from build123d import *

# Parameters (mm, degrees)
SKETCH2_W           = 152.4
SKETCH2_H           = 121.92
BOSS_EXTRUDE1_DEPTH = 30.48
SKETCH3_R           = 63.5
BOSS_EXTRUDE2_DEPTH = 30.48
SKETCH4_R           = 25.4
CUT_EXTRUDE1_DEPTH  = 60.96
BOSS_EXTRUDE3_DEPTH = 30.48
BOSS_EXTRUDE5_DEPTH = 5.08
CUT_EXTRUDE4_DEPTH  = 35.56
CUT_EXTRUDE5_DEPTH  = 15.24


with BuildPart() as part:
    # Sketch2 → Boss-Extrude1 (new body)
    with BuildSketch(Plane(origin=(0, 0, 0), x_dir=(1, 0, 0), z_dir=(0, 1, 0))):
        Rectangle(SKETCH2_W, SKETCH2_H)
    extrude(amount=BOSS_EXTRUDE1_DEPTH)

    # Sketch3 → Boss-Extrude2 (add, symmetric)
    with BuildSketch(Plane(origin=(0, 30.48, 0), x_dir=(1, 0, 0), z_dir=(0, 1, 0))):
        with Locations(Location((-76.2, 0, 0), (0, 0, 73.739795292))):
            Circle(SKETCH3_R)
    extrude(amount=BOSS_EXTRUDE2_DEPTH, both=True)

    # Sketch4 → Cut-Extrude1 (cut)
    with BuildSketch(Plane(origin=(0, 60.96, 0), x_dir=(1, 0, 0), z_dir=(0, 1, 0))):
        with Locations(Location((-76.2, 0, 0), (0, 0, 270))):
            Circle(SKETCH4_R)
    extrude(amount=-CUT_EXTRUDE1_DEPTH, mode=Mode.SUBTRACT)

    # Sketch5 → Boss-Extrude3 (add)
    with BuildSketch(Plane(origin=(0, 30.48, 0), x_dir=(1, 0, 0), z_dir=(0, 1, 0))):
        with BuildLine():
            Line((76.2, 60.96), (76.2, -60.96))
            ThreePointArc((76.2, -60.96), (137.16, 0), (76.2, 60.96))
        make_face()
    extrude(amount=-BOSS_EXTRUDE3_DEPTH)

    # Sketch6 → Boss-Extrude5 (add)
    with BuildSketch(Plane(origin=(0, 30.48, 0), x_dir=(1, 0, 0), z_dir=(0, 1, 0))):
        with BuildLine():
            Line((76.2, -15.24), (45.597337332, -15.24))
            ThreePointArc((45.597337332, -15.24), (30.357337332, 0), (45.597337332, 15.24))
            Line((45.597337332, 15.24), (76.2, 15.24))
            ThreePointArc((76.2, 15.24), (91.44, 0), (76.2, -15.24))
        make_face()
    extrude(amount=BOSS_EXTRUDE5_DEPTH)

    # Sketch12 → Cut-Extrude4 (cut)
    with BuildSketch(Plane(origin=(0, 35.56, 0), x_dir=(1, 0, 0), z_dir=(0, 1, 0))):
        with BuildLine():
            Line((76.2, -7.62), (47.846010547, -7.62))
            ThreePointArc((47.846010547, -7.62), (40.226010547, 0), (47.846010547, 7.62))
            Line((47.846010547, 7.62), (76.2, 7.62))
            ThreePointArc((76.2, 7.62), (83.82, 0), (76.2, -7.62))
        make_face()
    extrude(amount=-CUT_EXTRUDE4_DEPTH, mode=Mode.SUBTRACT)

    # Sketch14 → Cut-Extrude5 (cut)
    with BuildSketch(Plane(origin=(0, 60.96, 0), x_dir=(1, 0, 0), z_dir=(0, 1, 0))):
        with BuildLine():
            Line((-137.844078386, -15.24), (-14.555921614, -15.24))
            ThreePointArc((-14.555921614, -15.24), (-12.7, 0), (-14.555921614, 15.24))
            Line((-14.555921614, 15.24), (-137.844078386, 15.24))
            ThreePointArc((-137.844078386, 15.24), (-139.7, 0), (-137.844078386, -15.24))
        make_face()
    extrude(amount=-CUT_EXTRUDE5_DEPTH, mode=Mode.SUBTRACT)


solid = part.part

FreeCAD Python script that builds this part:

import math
import FreeCAD as App
import Part
import Sketcher
Q = App.Units.Quantity


def add_polygon(sketch, points):
    """Adds a closed chain of lines whose ends are joined by coincident constraints."""
    first, n = sketch.GeometryCount, len(points)
    for a, b in zip(points, points[1:] + points[:1]):
        sketch.addGeometry(Part.LineSegment(App.Vector(*a, 0), App.Vector(*b, 0)), False)
    for i in range(n):
        sketch.addConstraint(Sketcher.Constraint("Coincident", first + i, 2, first + (i + 1) % n, 1))

doc = App.newDocument("Part")
body = doc.addObject("PartDesign::Body", "Body")

sketch1 = body.newObject("Sketcher::SketchObject", "Sketch")
sketch1.AttachmentSupport = (doc.getObject("XZ_Plane"), [""])
sketch1.MapMode = "FlatFace"
add_polygon(sketch1, [(-76, -61), (-76, 61), (76, 61), (76, -61)])
sketch1.addConstraint(Sketcher.Constraint("Vertical", 0))
sketch1.addConstraint(Sketcher.Constraint("Horizontal", 1))
sketch1.addConstraint(Sketcher.Constraint("Vertical", 2))
sketch1.addConstraint(Sketcher.Constraint("Horizontal", 3))
sketch1.addConstraint(Sketcher.Constraint("Symmetric", 0, 2, 2, 2, -1, 1))
sketch1.addConstraint(Sketcher.Constraint("DistanceX", 1, 1, 1, 2, Q("6 in")))
sketch1.addConstraint(Sketcher.Constraint("DistanceY", 0, 1, 0, 2, Q("4.8 in")))
pad1 = body.newObject("PartDesign::Pad", "Pad")
pad1.Profile = sketch1
pad1.Length = Q("1.2 in")
pad1.Reversed = True

sketch2 = body.newObject("Sketcher::SketchObject", "Sketch001")
sketch2.AttachmentSupport = (doc.getObject("XZ_Plane"), [""])
sketch2.MapMode = "FlatFace"
sketch2.AttachmentOffset = App.Placement(App.Vector(0, 0, -1.2 * 25.4), App.Rotation())
sketch2.addGeometry(Part.Circle(App.Vector(-76, 0, 0), App.Vector(0, 0, 1), 64), False)
sketch2.addConstraint(Sketcher.Constraint("PointOnObject", 0, 3, -1))
sketch2.addConstraint(Sketcher.Constraint("Diameter", 0, Q("5 in")))
sketch2.addConstraint(Sketcher.Constraint("DistanceX", 0, 3, -1, 1, Q("3 in")))
pad2 = body.newObject("PartDesign::Pad", "Pad001")
pad2.Profile = sketch2
pad2.Length = Q("2.4 in")
pad2.Midplane = True

sketch3 = body.newObject("Sketcher::SketchObject", "Sketch002")
sketch3.AttachmentSupport = (doc.getObject("XZ_Plane"), [""])
sketch3.MapMode = "FlatFace"
sketch3.AttachmentOffset = App.Placement(App.Vector(0, 0, -2.4 * 25.4), App.Rotation())
sketch3.addGeometry(Part.Circle(App.Vector(-76, 0, 0), App.Vector(0, 0, 1), 25), False)
sketch3.addConstraint(Sketcher.Constraint("PointOnObject", 0, 3, -1))
sketch3.addConstraint(Sketcher.Constraint("Diameter", 0, Q("2 in")))
sketch3.addConstraint(Sketcher.Constraint("DistanceX", 0, 3, -1, 1, Q("3 in")))
pocket1 = body.newObject("PartDesign::Pocket", "Pocket")
pocket1.Profile = sketch3
pocket1.Length = Q("2.4 in")
pocket1.Reversed = True

sketch4 = body.newObject("Sketcher::SketchObject", "Sketch003")
sketch4.AttachmentSupport = (doc.getObject("XZ_Plane"), [""])
sketch4.MapMode = "FlatFace"
sketch4.AttachmentOffset = App.Placement(App.Vector(0, 0, -1.2 * 25.4), App.Rotation())
sketch4.addGeometry(Part.LineSegment(App.Vector(76, -61, 0), App.Vector(76, 61, 0)), False)
sketch4.addGeometry(Part.ArcOfCircle(Part.Circle(App.Vector(76, 0, 0), App.Vector(0, 0, 1), 61), math.radians(-90), math.radians(90)), False)
sketch4.addConstraint(Sketcher.Constraint("Coincident", 0, 1, 1, 1))
sketch4.addConstraint(Sketcher.Constraint("Coincident", 1, 2, 0, 2))
sketch4.addConstraint(Sketcher.Constraint("Vertical", 0))
sketch4.addConstraint(Sketcher.Constraint("PointOnObject", 1, 3, -1))
sketch4.addConstraint(Sketcher.Constraint("Vertical", 1, 3, 0, 1))
sketch4.addConstraint(Sketcher.Constraint("Radius", 1, Q("2.4 in")))
sketch4.addConstraint(Sketcher.Constraint("DistanceX", -1, 1, 1, 3, Q("3 in")))
pad3 = body.newObject("PartDesign::Pad", "Pad002")
pad3.Profile = sketch4
pad3.Length = Q("1.2 in")

sketch5 = body.newObject("Sketcher::SketchObject", "Sketch004")
sketch5.AttachmentSupport = (doc.getObject("XZ_Plane"), [""])
sketch5.MapMode = "FlatFace"
sketch5.AttachmentOffset = App.Placement(App.Vector(0, 0, -1.2 * 25.4), App.Rotation())
sketch5.addGeometry(Part.LineSegment(App.Vector(46, 15, 0), App.Vector(76, 15, 0)), False)
sketch5.addGeometry(Part.ArcOfCircle(Part.Circle(App.Vector(76, 0, 0), App.Vector(0, 0, 1), 15), math.radians(-90), math.radians(90)), False)
sketch5.addGeometry(Part.LineSegment(App.Vector(76, -15, 0), App.Vector(46, -15, 0)), False)
sketch5.addGeometry(Part.ArcOfCircle(Part.Circle(App.Vector(46, 0, 0), App.Vector(0, 0, 1), 15), math.radians(90), math.radians(270)), False)
sketch5.addConstraint(Sketcher.Constraint("Tangent", 0, 2, 1, 2))
sketch5.addConstraint(Sketcher.Constraint("Tangent", 1, 1, 2, 1))
sketch5.addConstraint(Sketcher.Constraint("Tangent", 2, 2, 3, 2))
sketch5.addConstraint(Sketcher.Constraint("Tangent", 3, 1, 0, 1))
sketch5.addConstraint(Sketcher.Constraint("Horizontal", 0))
sketch5.addConstraint(Sketcher.Constraint("Horizontal", 2))
sketch5.addConstraint(Sketcher.Constraint("PointOnObject", 1, 3, -1))
sketch5.addConstraint(Sketcher.Constraint("Radius", 1, Q("0.6 in")))
sketch5.addConstraint(Sketcher.Constraint("DistanceX", -1, 1, 1, 3, Q("3 in")))
sketch5.addConstraint(Sketcher.Constraint("DistanceX", 0, 1, 0, 2, Q("30.602663 mm")))
pad4 = body.newObject("PartDesign::Pad", "Pad003")
pad4.Profile = sketch5
pad4.Length = Q("0.2 in")
pad4.Reversed = True

sketch6 = body.newObject("Sketcher::SketchObject", "Sketch005")
sketch6.AttachmentSupport = (doc.getObject("XZ_Plane"), [""])
sketch6.MapMode = "FlatFace"
sketch6.AttachmentOffset = App.Placement(App.Vector(0, 0, -1.4 * 25.4), App.Rotation())
sketch6.addGeometry(Part.LineSegment(App.Vector(48, 8, 0), App.Vector(76, 8, 0)), False)
sketch6.addGeometry(Part.ArcOfCircle(Part.Circle(App.Vector(76, 0, 0), App.Vector(0, 0, 1), 8), math.radians(-90), math.radians(90)), False)
sketch6.addGeometry(Part.LineSegment(App.Vector(76, -8, 0), App.Vector(48, -8, 0)), False)
sketch6.addGeometry(Part.ArcOfCircle(Part.Circle(App.Vector(48, 0, 0), App.Vector(0, 0, 1), 8), math.radians(90), math.radians(270)), False)
sketch6.addConstraint(Sketcher.Constraint("Tangent", 0, 2, 1, 2))
sketch6.addConstraint(Sketcher.Constraint("Tangent", 1, 1, 2, 1))
sketch6.addConstraint(Sketcher.Constraint("Tangent", 2, 2, 3, 2))
sketch6.addConstraint(Sketcher.Constraint("Tangent", 3, 1, 0, 1))
sketch6.addConstraint(Sketcher.Constraint("Horizontal", 0))
sketch6.addConstraint(Sketcher.Constraint("Horizontal", 2))
sketch6.addConstraint(Sketcher.Constraint("PointOnObject", 1, 3, -1))
sketch6.addConstraint(Sketcher.Constraint("Radius", 1, Q("0.3 in")))
sketch6.addConstraint(Sketcher.Constraint("DistanceX", -1, 1, 1, 3, Q("3 in")))
sketch6.addConstraint(Sketcher.Constraint("DistanceX", 0, 1, 0, 2, Q("28.353989 mm")))
pocket2 = body.newObject("PartDesign::Pocket", "Pocket001")
pocket2.Profile = sketch6
pocket2.Length = Q("1.4 in")
pocket2.Reversed = True

sketch7 = body.newObject("Sketcher::SketchObject", "Sketch006")
sketch7.AttachmentSupport = (doc.getObject("XZ_Plane"), [""])
sketch7.MapMode = "FlatFace"
sketch7.AttachmentOffset = App.Placement(App.Vector(0, 0, -2.4 * 25.4), App.Rotation())
sketch7.addGeometry(Part.LineSegment(App.Vector(-138, 15, 0), App.Vector(-15, 15, 0)), False)
sketch7.addGeometry(Part.ArcOfCircle(Part.Circle(App.Vector(-76, 0, 0), App.Vector(0, 0, 1), 64), math.radians(-14), math.radians(14)), False)
sketch7.addGeometry(Part.LineSegment(App.Vector(-15, -15, 0), App.Vector(-138, -15, 0)), False)
sketch7.addGeometry(Part.ArcOfCircle(Part.Circle(App.Vector(-76, 0, 0), App.Vector(0, 0, 1), 64), math.radians(166), math.radians(194)), False)
sketch7.addConstraint(Sketcher.Constraint("Coincident", 0, 2, 1, 2))
sketch7.addConstraint(Sketcher.Constraint("Coincident", 1, 1, 2, 1))
sketch7.addConstraint(Sketcher.Constraint("Coincident", 2, 2, 3, 2))
sketch7.addConstraint(Sketcher.Constraint("Coincident", 3, 1, 0, 1))
sketch7.addConstraint(Sketcher.Constraint("Horizontal", 0))
sketch7.addConstraint(Sketcher.Constraint("Horizontal", 2))
sketch7.addConstraint(Sketcher.Constraint("Coincident", 3, 3, 1, 3))
sketch7.addConstraint(Sketcher.Constraint("Equal", 1, 3))
sketch7.addConstraint(Sketcher.Constraint("Symmetric", 0, 2, 1, 1, -1))
sketch7.addConstraint(Sketcher.Constraint("Radius", 1, Q("2.5 in")))
sketch7.addConstraint(Sketcher.Constraint("DistanceX", 1, 3, -1, 1, Q("3 in")))
sketch7.addConstraint(Sketcher.Constraint("DistanceY", -1, 1, 0, 2, Q("0.6 in")))
pocket3 = body.newObject("PartDesign::Pocket", "Pocket002")
pocket3.Profile = sketch7
pocket3.Length = Q("0.6 in")
pocket3.Reversed = True

doc.recompute()
